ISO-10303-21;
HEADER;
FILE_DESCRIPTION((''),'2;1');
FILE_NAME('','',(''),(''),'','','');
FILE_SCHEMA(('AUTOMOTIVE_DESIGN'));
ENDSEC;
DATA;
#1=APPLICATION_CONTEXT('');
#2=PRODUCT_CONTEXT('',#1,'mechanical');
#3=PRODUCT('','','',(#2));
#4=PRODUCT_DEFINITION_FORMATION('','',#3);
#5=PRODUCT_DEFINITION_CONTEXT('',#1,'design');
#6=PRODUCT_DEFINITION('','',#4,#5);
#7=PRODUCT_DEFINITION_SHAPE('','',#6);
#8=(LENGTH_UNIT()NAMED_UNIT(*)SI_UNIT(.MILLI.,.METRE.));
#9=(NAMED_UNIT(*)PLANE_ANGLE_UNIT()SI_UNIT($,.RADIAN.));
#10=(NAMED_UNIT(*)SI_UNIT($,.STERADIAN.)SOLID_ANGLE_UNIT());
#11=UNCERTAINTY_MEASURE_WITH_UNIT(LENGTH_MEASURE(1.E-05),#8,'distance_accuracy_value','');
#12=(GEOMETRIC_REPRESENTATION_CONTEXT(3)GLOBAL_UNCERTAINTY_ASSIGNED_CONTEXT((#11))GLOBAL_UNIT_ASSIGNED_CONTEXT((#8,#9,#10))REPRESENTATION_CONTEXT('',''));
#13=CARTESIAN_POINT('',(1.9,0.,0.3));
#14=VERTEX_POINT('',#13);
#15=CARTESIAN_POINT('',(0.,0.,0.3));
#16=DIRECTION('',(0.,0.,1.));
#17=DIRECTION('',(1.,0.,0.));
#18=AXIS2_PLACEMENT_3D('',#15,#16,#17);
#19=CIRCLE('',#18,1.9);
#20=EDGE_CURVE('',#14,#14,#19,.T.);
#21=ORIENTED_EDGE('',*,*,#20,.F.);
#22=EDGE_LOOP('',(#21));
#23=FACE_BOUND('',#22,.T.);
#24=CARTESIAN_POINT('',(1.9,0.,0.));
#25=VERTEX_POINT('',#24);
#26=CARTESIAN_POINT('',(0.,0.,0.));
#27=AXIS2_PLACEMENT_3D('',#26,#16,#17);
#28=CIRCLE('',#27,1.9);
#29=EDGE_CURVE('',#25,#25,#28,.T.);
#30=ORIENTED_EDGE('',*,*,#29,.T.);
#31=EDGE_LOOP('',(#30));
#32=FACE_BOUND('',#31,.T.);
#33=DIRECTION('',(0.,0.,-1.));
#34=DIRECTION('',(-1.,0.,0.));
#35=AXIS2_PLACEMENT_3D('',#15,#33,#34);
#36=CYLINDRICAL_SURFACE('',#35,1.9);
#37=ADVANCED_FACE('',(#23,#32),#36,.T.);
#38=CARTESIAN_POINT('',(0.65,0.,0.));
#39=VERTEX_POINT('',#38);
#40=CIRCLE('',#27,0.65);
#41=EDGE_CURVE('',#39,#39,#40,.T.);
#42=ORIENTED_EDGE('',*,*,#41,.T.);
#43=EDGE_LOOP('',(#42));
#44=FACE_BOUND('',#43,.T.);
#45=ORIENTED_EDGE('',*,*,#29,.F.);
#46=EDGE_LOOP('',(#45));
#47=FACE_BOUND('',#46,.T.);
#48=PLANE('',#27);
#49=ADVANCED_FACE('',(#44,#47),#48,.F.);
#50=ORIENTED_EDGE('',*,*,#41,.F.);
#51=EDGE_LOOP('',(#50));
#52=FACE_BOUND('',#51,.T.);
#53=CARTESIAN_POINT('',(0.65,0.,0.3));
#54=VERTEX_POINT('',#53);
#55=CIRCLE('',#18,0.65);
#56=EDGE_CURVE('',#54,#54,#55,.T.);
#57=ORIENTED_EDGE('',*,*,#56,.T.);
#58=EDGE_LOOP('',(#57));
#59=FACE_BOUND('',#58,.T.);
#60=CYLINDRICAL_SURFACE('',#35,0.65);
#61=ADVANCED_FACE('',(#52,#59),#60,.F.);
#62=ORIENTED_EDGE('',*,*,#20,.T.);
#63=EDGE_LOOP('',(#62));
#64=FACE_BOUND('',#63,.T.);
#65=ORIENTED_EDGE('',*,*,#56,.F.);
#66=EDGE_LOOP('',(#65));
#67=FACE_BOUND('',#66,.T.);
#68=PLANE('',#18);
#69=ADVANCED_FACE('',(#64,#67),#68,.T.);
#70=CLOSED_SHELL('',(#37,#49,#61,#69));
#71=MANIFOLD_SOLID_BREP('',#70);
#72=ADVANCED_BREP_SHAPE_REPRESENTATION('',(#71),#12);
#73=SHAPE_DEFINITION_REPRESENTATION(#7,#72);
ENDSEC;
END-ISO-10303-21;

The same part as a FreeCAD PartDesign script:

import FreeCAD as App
import Part
import Sketcher

doc = App.newDocument("Part")
body = doc.addObject("PartDesign::Body", "Body")

sketch1 = body.newObject("Sketcher::SketchObject", "Sketch")
sketch1.AttachmentSupport = (doc.getObject("XY_Plane"), [""])
sketch1.MapMode = "FlatFace"
sketch1.addGeometry(Part.Circle(App.Vector(0, 0, 0), App.Vector(0, 0, 1), 1.9), False)
sketch1.addGeometry(Part.Circle(App.Vector(0, 0, 0), App.Vector(0, 0, 1), 0.65), False)
sketch1.addConstraint(Sketcher.Constraint("Coincident", 0, 3, -1, 1))
sketch1.addConstraint(Sketcher.Constraint("Coincident", 1, 3, -1, 1))
sketch1.addConstraint(Sketcher.Constraint("Diameter", 0, 3.8))
sketch1.addConstraint(Sketcher.Constraint("Diameter", 1, 1.3))
pad1 = body.newObject("PartDesign::Pad", "Pad")
pad1.Profile = sketch1
pad1.Length = 0.3

doc.recompute()
